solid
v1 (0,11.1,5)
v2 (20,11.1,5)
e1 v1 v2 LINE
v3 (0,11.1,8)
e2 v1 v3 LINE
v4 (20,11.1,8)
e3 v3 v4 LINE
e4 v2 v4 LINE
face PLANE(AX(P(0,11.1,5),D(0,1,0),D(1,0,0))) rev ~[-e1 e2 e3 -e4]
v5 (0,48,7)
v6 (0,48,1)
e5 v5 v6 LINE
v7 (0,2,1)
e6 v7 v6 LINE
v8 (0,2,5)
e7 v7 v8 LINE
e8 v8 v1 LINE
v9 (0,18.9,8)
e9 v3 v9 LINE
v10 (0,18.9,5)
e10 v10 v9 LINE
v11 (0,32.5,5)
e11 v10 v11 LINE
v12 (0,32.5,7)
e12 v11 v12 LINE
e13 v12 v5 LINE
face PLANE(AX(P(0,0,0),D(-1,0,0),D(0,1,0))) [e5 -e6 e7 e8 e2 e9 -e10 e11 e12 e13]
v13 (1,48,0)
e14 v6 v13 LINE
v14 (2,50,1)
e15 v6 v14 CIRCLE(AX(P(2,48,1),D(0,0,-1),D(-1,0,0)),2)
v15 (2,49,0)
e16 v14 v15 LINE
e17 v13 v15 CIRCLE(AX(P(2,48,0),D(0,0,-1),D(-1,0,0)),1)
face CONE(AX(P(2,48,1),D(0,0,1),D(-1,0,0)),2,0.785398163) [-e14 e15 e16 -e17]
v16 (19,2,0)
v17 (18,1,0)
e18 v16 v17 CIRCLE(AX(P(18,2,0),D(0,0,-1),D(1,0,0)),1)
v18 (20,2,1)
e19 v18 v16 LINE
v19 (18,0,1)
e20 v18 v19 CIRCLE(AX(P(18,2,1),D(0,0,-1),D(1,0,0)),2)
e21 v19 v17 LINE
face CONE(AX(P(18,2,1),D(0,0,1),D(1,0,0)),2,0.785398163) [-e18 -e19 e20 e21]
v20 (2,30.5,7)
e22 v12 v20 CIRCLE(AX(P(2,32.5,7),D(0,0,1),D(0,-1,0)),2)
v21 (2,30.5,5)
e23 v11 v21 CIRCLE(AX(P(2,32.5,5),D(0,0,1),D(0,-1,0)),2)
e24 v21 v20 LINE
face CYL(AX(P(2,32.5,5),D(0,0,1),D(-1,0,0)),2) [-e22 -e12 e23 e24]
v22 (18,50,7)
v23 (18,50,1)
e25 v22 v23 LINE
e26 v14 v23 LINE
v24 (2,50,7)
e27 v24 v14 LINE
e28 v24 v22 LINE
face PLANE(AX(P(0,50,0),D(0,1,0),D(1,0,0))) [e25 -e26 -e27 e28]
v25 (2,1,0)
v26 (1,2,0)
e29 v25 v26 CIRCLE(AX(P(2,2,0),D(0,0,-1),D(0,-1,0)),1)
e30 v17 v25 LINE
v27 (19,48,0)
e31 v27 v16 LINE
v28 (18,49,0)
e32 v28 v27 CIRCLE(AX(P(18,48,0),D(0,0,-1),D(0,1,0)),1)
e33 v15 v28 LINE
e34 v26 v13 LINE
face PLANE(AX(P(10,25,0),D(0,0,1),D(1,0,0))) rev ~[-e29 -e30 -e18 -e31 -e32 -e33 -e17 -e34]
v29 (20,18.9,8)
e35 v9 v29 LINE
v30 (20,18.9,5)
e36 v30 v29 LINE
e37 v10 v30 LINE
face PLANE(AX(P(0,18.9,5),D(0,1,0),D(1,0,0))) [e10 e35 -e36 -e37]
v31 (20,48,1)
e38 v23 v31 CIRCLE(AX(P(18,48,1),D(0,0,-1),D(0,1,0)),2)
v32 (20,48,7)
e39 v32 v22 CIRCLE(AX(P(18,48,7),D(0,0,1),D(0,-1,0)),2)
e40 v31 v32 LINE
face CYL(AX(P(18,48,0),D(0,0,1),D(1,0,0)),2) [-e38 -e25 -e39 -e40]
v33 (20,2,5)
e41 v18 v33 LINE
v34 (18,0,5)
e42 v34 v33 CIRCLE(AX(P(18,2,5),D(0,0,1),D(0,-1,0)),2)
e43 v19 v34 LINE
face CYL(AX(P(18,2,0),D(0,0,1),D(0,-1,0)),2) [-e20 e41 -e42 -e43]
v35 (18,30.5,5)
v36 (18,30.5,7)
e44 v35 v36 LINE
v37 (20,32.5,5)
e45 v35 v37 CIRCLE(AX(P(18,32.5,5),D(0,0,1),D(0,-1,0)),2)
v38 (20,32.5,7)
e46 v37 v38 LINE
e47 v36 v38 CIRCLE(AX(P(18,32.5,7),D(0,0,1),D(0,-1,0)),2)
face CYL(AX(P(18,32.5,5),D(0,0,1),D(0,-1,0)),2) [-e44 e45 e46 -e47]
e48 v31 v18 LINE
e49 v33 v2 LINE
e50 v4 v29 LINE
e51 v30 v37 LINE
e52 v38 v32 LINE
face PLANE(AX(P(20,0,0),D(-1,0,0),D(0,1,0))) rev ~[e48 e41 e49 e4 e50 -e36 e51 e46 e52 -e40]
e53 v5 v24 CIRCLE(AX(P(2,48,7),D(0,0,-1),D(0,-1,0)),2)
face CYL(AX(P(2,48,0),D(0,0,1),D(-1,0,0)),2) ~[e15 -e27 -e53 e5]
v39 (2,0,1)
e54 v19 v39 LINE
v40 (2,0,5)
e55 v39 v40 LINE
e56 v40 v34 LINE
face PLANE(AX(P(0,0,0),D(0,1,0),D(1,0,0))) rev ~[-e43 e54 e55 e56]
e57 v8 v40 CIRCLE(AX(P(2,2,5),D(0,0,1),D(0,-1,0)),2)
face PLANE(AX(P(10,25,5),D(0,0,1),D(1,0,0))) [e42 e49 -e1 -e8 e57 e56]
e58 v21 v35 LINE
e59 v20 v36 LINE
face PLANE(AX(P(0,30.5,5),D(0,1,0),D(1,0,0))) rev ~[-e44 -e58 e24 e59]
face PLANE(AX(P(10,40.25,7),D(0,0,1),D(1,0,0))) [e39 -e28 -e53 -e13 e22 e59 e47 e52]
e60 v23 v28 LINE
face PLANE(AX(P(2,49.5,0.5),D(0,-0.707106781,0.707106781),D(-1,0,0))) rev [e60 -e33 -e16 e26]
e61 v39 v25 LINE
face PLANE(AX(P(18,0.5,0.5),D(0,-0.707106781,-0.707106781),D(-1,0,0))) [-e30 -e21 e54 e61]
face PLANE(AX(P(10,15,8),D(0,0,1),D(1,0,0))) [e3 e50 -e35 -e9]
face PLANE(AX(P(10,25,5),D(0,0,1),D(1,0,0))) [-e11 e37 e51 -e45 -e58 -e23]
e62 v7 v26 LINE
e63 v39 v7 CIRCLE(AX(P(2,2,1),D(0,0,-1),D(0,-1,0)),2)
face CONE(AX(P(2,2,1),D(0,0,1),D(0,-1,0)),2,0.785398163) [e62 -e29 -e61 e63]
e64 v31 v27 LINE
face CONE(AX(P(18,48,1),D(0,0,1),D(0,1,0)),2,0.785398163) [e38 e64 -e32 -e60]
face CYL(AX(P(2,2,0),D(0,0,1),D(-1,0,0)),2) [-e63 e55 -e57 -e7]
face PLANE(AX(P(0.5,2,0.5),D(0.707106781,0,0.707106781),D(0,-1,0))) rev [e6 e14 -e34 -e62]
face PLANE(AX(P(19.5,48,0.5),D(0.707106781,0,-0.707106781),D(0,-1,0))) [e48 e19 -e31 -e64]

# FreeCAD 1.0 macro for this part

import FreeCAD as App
import Part
import Sketcher
Q = App.Units.Quantity


def edges_at(feature, points):
    """Names of the edges that pass closest to the given points."""
    edges = feature.Shape.Edges
    near = lambda p: min(range(len(edges)), key=lambda i: edges[i].distToShape(Part.Vertex(*p))[0])
    return sorted({f"Edge{near(p) + 1}" for p in points})

doc = App.newDocument("Part")
params = doc.addObject("Spreadsheet::Sheet", "Params")
for row, (alias, value) in enumerate([
    ("sketch1_width", "20 mm"),
    ("sketch1_height", "50 mm"),
    ("pad1_length", "5 mm"),
    ("fillet_radius", "2 mm"),
    ("chamfer_size", "1 mm"),
    ("sketch2_width", "20 mm"),
    ("sketch2_height", "7.8 mm"),
    ("pad2_length", "3 mm"),
    ("sketch3_width", "20 mm"),
    ("sketch3_height", "19.5 mm"),
    ("pad3_length", "2 mm"),
    ("fillet2_radius", "2 mm"),
], start=1):
    params.set(f"A{row}", alias)
    params.set(f"B{row}", "=" + value)
    params.setAlias(f"B{row}", alias)

body = doc.addObject("PartDesign::Body", "Body")

sketch1 = doc.addObject("Sketcher::SketchObject", "Sketch")
body.addObject(sketch1)
sketch1.AttachmentSupport = (doc.XY_Plane, [""])
sketch1.MapMode = "FlatFace"
sketch1.addGeometry(Part.LineSegment(App.Vector(0, 50, 0), App.Vector(0, 0, 0)), False)
sketch1.addGeometry(Part.LineSegment(App.Vector(0, 0, 0), App.Vector(20, 0, 0)), False)
sketch1.addGeometry(Part.LineSegment(App.Vector(20, 0, 0), App.Vector(20, 50, 0)), False)
sketch1.addGeometry(Part.LineSegment(App.Vector(20, 50, 0), App.Vector(0, 50, 0)), False)
sketch1.addConstraint(Sketcher.Constraint("Coincident", 0, 2, 1, 1))
sketch1.addConstraint(Sketcher.Constraint("Coincident", 1, 2, 2, 1))
sketch1.addConstraint(Sketcher.Constraint("Coincident", 2, 2, 3, 1))
sketch1.addConstraint(Sketcher.Constraint("Coincident", 3, 2, 0, 1))
sketch1.addConstraint(Sketcher.Constraint("Vertical", 0))
sketch1.addConstraint(Sketcher.Constraint("Horizontal", 1))
sketch1.addConstraint(Sketcher.Constraint("Vertical", 2))
sketch1.addConstraint(Sketcher.Constraint("Horizontal", 3))
sketch1.addConstraint(Sketcher.Constraint("Coincident", 0, 2, -1, 1))
sketch1.addConstraint(Sketcher.Constraint("DistanceX", 1, 1, 1, 2, Q("20 mm")))
sketch1.addConstraint(Sketcher.Constraint("DistanceY", 0, 2, 0, 1, Q("50 mm")))
sketch1.setExpression("Constraints[9]", "Params.sketch1_width")
sketch1.setExpression("Constraints[10]", "Params.sketch1_height")
pad1 = doc.addObject("PartDesign::Pad", "Pad")
body.addObject(pad1)
pad1.Profile = sketch1
pad1.setExpression("Length", "Params.pad1_length")
doc.recompute()

fillet = doc.addObject("PartDesign::Fillet", "Fillet")
body.addObject(fillet)
fillet.Base = (pad1, edges_at(pad1, [
    (0, 0, 2.5),
    (0, 50, 2.5),
    (20, 0, 2.5),
    (20, 50, 2.5),
]))
fillet.setExpression("Radius", "Params.fillet_radius")
doc.recompute()

chamfer = doc.addObject("PartDesign::Chamfer", "Chamfer")
body.addObject(chamfer)
chamfer.Base = (fillet, edges_at(fillet, [
    (0, 25, 0),
    (0.586, 0.586, 0),
    (0.586, 49.414, 0),
    (10, 0, 0),
    (19.414, 0.586, 0),
    (20, 25, 0),
    (19.414, 49.414, 0),
    (10, 50, 0),
]))
chamfer.setExpression("Size", "Params.chamfer_size")
body2 = doc.addObject("PartDesign::Body", "Body001")

sketch2 = doc.addObject("Sketcher::SketchObject", "Sketch001")
body2.addObject(sketch2)
sketch2.AttachmentSupport = (doc.getObject("XY_Plane001"), [""])
sketch2.MapMode = "FlatFace"
sketch2.AttachmentOffset = App.Placement(App.Vector(0, 0, 5), App.Rotation())
sketch2.addGeometry(Part.LineSegment(App.Vector(0, 19, 0), App.Vector(0, 11, 0)), False)
sketch2.addGeometry(Part.LineSegment(App.Vector(0, 11, 0), App.Vector(20, 11, 0)), False)
sketch2.addGeometry(Part.LineSegment(App.Vector(20, 11, 0), App.Vector(20, 19, 0)), False)
sketch2.addGeometry(Part.LineSegment(App.Vector(20, 19, 0), App.Vector(0, 19, 0)), False)
sketch2.addConstraint(Sketcher.Constraint("Coincident", 0, 2, 1, 1))
sketch2.addConstraint(Sketcher.Constraint("Coincident", 1, 2, 2, 1))
sketch2.addConstraint(Sketcher.Constraint("Coincident", 2, 2, 3, 1))
sketch2.addConstraint(Sketcher.Constraint("Coincident", 3, 2, 0, 1))
sketch2.addConstraint(Sketcher.Constraint("Vertical", 0))
sketch2.addConstraint(Sketcher.Constraint("Horizontal", 1))
sketch2.addConstraint(Sketcher.Constraint("Vertical", 2))
sketch2.addConstraint(Sketcher.Constraint("Horizontal", 3))
sketch2.addConstraint(Sketcher.Constraint("PointOnObject", 0, 2, -2))
sketch2.addConstraint(Sketcher.Constraint("DistanceX", 1, 1, 1, 2, Q("20 mm")))
sketch2.addConstraint(Sketcher.Constraint("DistanceY", 0, 2, 0, 1, Q("7.8 mm")))
sketch2.addConstraint(Sketcher.Constraint("DistanceY", -1, 1, 0, 2, Q("11.1 mm")))
sketch2.setExpression("Constraints[9]", "Params.sketch2_width")
sketch2.setExpression("Constraints[10]", "Params.sketch2_height")
pad2 = doc.addObject("PartDesign::Pad", "Pad001")
body2.addObject(pad2)
pad2.Profile = sketch2
pad2.setExpression("Length", "Params.pad2_length")
body3 = doc.addObject("PartDesign::Body", "Body002")

sketch3 = doc.addObject("Sketcher::SketchObject", "Sketch002")
body3.addObject(sketch3)
sketch3.AttachmentSupport = (doc.getObject("XY_Plane002"), [""])
sketch3.MapMode = "FlatFace"
sketch3.AttachmentOffset = App.Placement(App.Vector(0, 0, 5), App.Rotation())
sketch3.addGeometry(Part.LineSegment(App.Vector(0, 50, 0), App.Vector(0, 30, 0)), False)
sketch3.addGeometry(Part.LineSegment(App.Vector(0, 30, 0), App.Vector(20, 30, 0)), False)
sketch3.addGeometry(Part.LineSegment(App.Vector(20, 30, 0), App.Vector(20, 50, 0)), False)
sketch3.addGeometry(Part.LineSegment(App.Vector(20, 50, 0), App.Vector(0, 50, 0)), False)
sketch3.addConstraint(Sketcher.Constraint("Coincident", 0, 2, 1, 1))
sketch3.addConstraint(Sketcher.Constraint("Coincident", 1, 2, 2, 1))
sketch3.addConstraint(Sketcher.Constraint("Coincident", 2, 2, 3, 1))
sketch3.addConstraint(Sketcher.Constraint("Coincident", 3, 2, 0, 1))
sketch3.addConstraint(Sketcher.Constraint("Vertical", 0))
sketch3.addConstraint(Sketcher.Constraint("Horizontal", 1))
sketch3.addConstraint(Sketcher.Constraint("Vertical", 2))
sketch3.addConstraint(Sketcher.Constraint("Horizontal", 3))
sketch3.addConstraint(Sketcher.Constraint("PointOnObject", 0, 2, -2))
sketch3.addConstraint(Sketcher.Constraint("DistanceX", 1, 1, 1, 2, Q("20 mm")))
sketch3.addConstraint(Sketcher.Constraint("DistanceY", 0, 2, 0, 1, Q("19.5 mm")))
sketch3.addConstraint(Sketcher.Constraint("DistanceY", -1, 1, 2, 2, Q("50 mm")))
sketch3.setExpression("Constraints[9]", "Params.sketch3_width")
sketch3.setExpression("Constraints[10]", "Params.sketch3_height")
pad3 = doc.addObject("PartDesign::Pad", "Pad002")
body3.addObject(pad3)
pad3.Profile = sketch3
pad3.setExpression("Length", "Params.pad3_length")
doc.recompute()

fillet2 = doc.addObject("PartDesign::Fillet", "Fillet001")
body3.addObject(fillet2)
fillet2.Base = (pad3, edges_at(pad3, [
    (0, 30.5, 6),
    (0, 50, 6),
    (20, 30.5, 6),
    (20, 50, 6),
]))
fillet2.setExpression("Radius", "Params.fillet2_radius")
doc.recompute()

boolean = doc.addObject("PartDesign::Boolean", "Boolean")
body3.addObject(boolean)
boolean.Type = "Fuse"
boolean.addObjects([body])
doc.recompute()

boolean2 = doc.addObject("PartDesign::Boolean", "Boolean001")
body3.addObject(boolean2)
boolean2.Type = "Fuse"
boolean2.addObjects([body2])

doc.recompute()
